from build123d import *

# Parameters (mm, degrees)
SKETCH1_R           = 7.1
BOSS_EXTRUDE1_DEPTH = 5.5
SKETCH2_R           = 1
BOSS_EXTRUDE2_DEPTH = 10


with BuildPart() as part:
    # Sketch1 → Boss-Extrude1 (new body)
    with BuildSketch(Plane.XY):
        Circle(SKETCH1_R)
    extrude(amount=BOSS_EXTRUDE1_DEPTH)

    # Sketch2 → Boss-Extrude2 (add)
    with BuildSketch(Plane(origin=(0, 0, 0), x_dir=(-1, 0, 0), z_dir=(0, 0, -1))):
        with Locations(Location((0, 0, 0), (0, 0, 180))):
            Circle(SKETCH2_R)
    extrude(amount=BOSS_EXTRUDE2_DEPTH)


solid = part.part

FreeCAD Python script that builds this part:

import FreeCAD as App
import Part
import Sketcher
from FreeCAD import Vector
Q = App.Units.Quantity

doc = App.newDocument("Part")
params = doc.addObject("Spreadsheet::Sheet", "Params")
for row, (alias, value) in enumerate([
    ("sketch1_diameter", "14.2 mm"),
    ("pad1_length", "5.5 mm"),
    ("sketch2_diameter", "2 mm"),
    ("pad2_length", "10 mm"),
], start=1):
    params.set(f"A{row}", alias)
    params.set(f"B{row}", "=" + value)
    params.setAlias(f"B{row}", alias)

body = doc.addObject("PartDesign::Body", "Body")

# Sketch on XY plane
sketch1 = body.newObject("Sketcher::SketchObject", "Sketch")
sketch1.AttachmentSupport = (doc.getObject("XY_Plane"), [""])
sketch1.MapMode = "FlatFace"
sketch1.addGeometry(Part.Circle(Vector(0, 0, 0), Vector(0, 0, 1), 7), False)
sketch1.addConstraint(Sketcher.Constraint("Coincident", 0, 3, -1, 1))
sketch1.addConstraint(Sketcher.Constraint("Diameter", 0, Q("14.2 mm")))
sketch1.setExpression("Constraints[1]", "Params.sketch1_diameter")
pad1 = body.newObject("PartDesign::Pad", "Pad")
pad1.Profile = sketch1
pad1.setExpression("Length", "Params.pad1_length")

# Sketch on XY plane
sketch2 = body.newObject("Sketcher::SketchObject", "Sketch001")
sketch2.AttachmentSupport = (doc.getObject("XY_Plane"), [""])
sketch2.MapMode = "FlatFace"
sketch2.addGeometry(Part.Circle(Vector(0, 0, 0), Vector(0, 0, 1), 1), False)
sketch2.addConstraint(Sketcher.Constraint("Coincident", 0, 3, -1, 1))
sketch2.addConstraint(Sketcher.Constraint("Diameter", 0, Q("2 mm")))
sketch2.setExpression("Constraints[1]", "Params.sketch2_diameter")
pad2 = body.newObject("PartDesign::Pad", "Pad001")
pad2.Profile = sketch2
pad2.setExpression("Length", "Params.pad2_length")
pad2.Reversed = True

doc.recompute()
